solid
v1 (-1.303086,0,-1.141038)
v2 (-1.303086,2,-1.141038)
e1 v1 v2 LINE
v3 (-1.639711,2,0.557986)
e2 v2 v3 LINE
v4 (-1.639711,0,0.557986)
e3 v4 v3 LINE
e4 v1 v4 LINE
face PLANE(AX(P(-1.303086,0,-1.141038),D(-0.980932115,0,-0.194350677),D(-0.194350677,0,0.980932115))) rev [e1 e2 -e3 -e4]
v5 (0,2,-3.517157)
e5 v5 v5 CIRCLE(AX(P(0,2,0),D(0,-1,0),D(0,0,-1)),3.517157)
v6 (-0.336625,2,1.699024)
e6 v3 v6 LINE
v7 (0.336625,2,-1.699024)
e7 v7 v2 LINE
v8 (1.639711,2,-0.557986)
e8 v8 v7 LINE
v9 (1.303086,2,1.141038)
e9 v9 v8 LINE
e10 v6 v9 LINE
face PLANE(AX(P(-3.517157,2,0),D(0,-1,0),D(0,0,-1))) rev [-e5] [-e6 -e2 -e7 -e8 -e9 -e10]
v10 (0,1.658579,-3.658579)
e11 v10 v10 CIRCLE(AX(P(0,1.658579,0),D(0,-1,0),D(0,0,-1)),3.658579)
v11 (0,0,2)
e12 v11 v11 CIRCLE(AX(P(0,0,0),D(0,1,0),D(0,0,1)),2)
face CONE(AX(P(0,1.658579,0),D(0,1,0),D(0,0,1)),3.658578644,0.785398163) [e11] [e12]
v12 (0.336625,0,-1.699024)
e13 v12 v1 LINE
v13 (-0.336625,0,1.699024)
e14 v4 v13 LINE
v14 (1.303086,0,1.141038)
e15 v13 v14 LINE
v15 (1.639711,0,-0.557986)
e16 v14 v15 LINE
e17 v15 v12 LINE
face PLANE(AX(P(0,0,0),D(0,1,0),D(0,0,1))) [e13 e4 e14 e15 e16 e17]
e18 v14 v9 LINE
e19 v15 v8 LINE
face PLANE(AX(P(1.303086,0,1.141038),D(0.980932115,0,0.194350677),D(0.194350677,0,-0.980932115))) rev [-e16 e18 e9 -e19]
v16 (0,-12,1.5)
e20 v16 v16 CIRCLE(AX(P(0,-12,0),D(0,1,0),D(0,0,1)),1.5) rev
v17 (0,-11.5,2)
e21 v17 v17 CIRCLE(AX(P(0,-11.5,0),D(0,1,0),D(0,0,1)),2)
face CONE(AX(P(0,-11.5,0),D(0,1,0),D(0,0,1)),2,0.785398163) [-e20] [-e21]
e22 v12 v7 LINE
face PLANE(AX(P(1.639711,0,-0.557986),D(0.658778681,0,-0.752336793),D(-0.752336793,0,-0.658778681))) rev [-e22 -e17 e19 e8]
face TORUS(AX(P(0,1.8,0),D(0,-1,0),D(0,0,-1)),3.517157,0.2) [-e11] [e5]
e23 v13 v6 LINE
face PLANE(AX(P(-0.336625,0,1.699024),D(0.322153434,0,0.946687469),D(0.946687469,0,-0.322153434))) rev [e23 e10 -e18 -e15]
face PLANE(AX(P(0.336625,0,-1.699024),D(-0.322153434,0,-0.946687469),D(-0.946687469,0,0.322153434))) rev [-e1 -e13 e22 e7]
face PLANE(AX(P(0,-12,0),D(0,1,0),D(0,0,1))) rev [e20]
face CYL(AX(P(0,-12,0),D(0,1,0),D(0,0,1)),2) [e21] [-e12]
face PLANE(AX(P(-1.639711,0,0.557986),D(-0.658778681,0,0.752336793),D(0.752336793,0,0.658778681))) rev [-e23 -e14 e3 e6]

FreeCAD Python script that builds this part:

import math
import FreeCAD as App
import Part
import Sketcher
from FreeCAD import Vector
Q = App.Units.Quantity


def edges_at(feature, points):
    """Names of the edges that pass closest to the given points."""
    edges = feature.Shape.Edges
    near = lambda p: min(range(len(edges)), key=lambda i: edges[i].distToShape(Part.Vertex(*p))[0])
    return sorted({f"Edge{near(p) + 1}" for p in points})

doc = App.newDocument("Part")
body = doc.addObject("PartDesign::Body", "Body")

# Sketch on XZ plane
sketch1 = doc.addObject("Sketcher::SketchObject", "Sketch")
body.addObject(sketch1)
sketch1.AttachmentSupport = (doc.XZ_Plane, [""])
sketch1.MapMode = "FlatFace"
sketch1.addGeometry(Part.Circle(Vector(0, 0, 0), Vector(0, 0, 1), 2), False)
sketch1.addConstraint(Sketcher.Constraint("Coincident", 0, 3, -1, 1))
sketch1.addConstraint(Sketcher.Constraint("Diameter", 0, Q("4 mm")))
pad1 = doc.addObject("PartDesign::Pad", "Pad")
body.addObject(pad1)
pad1.Profile = sketch1
pad1.Length = 12

# Sketch on XY plane
sketch2 = doc.addObject("Sketcher::SketchObject", "Sketch001")
body.addObject(sketch2)
sketch2.AttachmentSupport = (doc.XY_Plane, [""])
sketch2.MapMode = "FlatFace"
sketch2.addGeometry(Part.LineSegment(Vector(-2, 0, 0), Vector(0, 0, 0)), False)
sketch2.addGeometry(Part.LineSegment(Vector(0, 0, 0), Vector(0, 2, 0)), False)
sketch2.addGeometry(Part.LineSegment(Vector(0, 2, 0), Vector(-3.517157, 2, 0)), False)
sketch2.addGeometry(Part.ArcOfCircle(Part.Circle(Vector(-3.517157, 1.8, 0), Vector(0, 0, 1), 0.2), math.radians(90), math.radians(225)), False)
sketch2.addGeometry(Part.LineSegment(Vector(-3.658579, 1.658579, 0), Vector(-2, 0, 0)), False)
sketch2.addConstraint(Sketcher.Constraint("Coincident", 0, 2, 1, 1))
sketch2.addConstraint(Sketcher.Constraint("Coincident", 1, 2, 2, 1))
sketch2.addConstraint(Sketcher.Constraint("Tangent", 2, 2, 3, 1))
sketch2.addConstraint(Sketcher.Constraint("Tangent", 3, 2, 4, 1))
sketch2.addConstraint(Sketcher.Constraint("Coincident", 4, 2, 0, 1))
sketch2.addConstraint(Sketcher.Constraint("Horizontal", 0))
sketch2.addConstraint(Sketcher.Constraint("Vertical", 1))
sketch2.addConstraint(Sketcher.Constraint("Horizontal", 2))
sketch2.addConstraint(Sketcher.Constraint("Coincident", 0, 2, -1, 1))
sketch2.addConstraint(Sketcher.Constraint("Equal", 0, 1))
sketch2.addConstraint(Sketcher.Constraint("Radius", 3, Q("0.2 mm")))
sketch2.addConstraint(Sketcher.Constraint("DistanceX", 0, 1, 0, 2, Q("2 mm")))
sketch2.addConstraint(Sketcher.Constraint("Angle", 4, Q("-45 deg")))
revolution = doc.addObject("PartDesign::Revolution", "Revolution")
body.addObject(revolution)
revolution.Profile = sketch2
revolution.ReferenceAxis = (sketch2, ["V_Axis"])
revolution.Angle = 360
doc.recompute()

chamfer = doc.addObject("PartDesign::Chamfer", "Chamfer")
body.addObject(chamfer)
chamfer.Base = (revolution, edges_at(revolution, [(-2, -12, 0)]))
chamfer.Size = 0.5

# Sketch on XZ plane
sketch3 = doc.addObject("Sketcher::SketchObject", "Sketch002")
body.addObject(sketch3)
sketch3.AttachmentSupport = (doc.XZ_Plane, [""])
sketch3.MapMode = "FlatFace"
sketch3.AttachmentOffset = App.Placement(Vector(0, 0, -2), App.Rotation())
sketch3.addGeometry(Part.LineSegment(Vector(1.303086, 1.141038, 0), Vector(1.639711, -0.557986, 0)), False)
sketch3.addGeometry(Part.LineSegment(Vector(1.639711, -0.557986, 0), Vector(0.336625, -1.699024, 0)), False)
sketch3.addGeometry(Part.LineSegment(Vector(0.336625, -1.699024, 0), Vector(-1.303086, -1.141038, 0)), False)
sketch3.addGeometry(Part.LineSegment(Vector(-1.303086, -1.141038, 0), Vector(-1.639711, 0.557986, 0)), False)
sketch3.addGeometry(Part.LineSegment(Vector(-1.639711, 0.557986, 0), Vector(-0.336625, 1.699024, 0)), False)
sketch3.addGeometry(Part.LineSegment(Vector(-0.336625, 1.699024, 0), Vector(1.303086, 1.141038, 0)), False)
sketch3.addConstraint(Sketcher.Constraint("Coincident", 0, 2, 1, 1))
sketch3.addConstraint(Sketcher.Constraint("Coincident", 1, 2, 2, 1))
sketch3.addConstraint(Sketcher.Constraint("Coincident", 2, 2, 3, 1))
sketch3.addConstraint(Sketcher.Constraint("Coincident", 3, 2, 4, 1))
sketch3.addConstraint(Sketcher.Constraint("Coincident", 4, 2, 5, 1))
sketch3.addConstraint(Sketcher.Constraint("Coincident", 5, 2, 0, 1))
sketch3.addConstraint(Sketcher.Constraint("Symmetric", 0, 2, 3, 2, -1, 1))
sketch3.addConstraint(Sketcher.Constraint("Symmetric", 1, 2, 4, 2, -1, 1))
sketch3.addConstraint(Sketcher.Constraint("Symmetric", 2, 2, 5, 2, -1, 1))
sketch3.addConstraint(Sketcher.Constraint("Equal", 0, 1))
sketch3.addConstraint(Sketcher.Constraint("Equal", 1, 2))
sketch3.addConstraint(Sketcher.Constraint("Distance", 0, Q("1.732051 mm")))
sketch3.addConstraint(Sketcher.Constraint("DistanceX", -1, 1, 0, 2, Q("1.639711 mm")))
sketch3.addConstraint(Sketcher.Constraint("DistanceY", 2, 2, -1, 1, Q("1.141038 mm")))
sketch3.addConstraint(Sketcher.Constraint("DistanceY", 1, 2, 0, 2, Q("1.141038 mm")))
pocket1 = doc.addObject("PartDesign::Pocket", "Pocket")
body.addObject(pocket1)
pocket1.Profile = sketch3
pocket1.Length = 2
pocket1.Reversed = True

doc.recompute()
